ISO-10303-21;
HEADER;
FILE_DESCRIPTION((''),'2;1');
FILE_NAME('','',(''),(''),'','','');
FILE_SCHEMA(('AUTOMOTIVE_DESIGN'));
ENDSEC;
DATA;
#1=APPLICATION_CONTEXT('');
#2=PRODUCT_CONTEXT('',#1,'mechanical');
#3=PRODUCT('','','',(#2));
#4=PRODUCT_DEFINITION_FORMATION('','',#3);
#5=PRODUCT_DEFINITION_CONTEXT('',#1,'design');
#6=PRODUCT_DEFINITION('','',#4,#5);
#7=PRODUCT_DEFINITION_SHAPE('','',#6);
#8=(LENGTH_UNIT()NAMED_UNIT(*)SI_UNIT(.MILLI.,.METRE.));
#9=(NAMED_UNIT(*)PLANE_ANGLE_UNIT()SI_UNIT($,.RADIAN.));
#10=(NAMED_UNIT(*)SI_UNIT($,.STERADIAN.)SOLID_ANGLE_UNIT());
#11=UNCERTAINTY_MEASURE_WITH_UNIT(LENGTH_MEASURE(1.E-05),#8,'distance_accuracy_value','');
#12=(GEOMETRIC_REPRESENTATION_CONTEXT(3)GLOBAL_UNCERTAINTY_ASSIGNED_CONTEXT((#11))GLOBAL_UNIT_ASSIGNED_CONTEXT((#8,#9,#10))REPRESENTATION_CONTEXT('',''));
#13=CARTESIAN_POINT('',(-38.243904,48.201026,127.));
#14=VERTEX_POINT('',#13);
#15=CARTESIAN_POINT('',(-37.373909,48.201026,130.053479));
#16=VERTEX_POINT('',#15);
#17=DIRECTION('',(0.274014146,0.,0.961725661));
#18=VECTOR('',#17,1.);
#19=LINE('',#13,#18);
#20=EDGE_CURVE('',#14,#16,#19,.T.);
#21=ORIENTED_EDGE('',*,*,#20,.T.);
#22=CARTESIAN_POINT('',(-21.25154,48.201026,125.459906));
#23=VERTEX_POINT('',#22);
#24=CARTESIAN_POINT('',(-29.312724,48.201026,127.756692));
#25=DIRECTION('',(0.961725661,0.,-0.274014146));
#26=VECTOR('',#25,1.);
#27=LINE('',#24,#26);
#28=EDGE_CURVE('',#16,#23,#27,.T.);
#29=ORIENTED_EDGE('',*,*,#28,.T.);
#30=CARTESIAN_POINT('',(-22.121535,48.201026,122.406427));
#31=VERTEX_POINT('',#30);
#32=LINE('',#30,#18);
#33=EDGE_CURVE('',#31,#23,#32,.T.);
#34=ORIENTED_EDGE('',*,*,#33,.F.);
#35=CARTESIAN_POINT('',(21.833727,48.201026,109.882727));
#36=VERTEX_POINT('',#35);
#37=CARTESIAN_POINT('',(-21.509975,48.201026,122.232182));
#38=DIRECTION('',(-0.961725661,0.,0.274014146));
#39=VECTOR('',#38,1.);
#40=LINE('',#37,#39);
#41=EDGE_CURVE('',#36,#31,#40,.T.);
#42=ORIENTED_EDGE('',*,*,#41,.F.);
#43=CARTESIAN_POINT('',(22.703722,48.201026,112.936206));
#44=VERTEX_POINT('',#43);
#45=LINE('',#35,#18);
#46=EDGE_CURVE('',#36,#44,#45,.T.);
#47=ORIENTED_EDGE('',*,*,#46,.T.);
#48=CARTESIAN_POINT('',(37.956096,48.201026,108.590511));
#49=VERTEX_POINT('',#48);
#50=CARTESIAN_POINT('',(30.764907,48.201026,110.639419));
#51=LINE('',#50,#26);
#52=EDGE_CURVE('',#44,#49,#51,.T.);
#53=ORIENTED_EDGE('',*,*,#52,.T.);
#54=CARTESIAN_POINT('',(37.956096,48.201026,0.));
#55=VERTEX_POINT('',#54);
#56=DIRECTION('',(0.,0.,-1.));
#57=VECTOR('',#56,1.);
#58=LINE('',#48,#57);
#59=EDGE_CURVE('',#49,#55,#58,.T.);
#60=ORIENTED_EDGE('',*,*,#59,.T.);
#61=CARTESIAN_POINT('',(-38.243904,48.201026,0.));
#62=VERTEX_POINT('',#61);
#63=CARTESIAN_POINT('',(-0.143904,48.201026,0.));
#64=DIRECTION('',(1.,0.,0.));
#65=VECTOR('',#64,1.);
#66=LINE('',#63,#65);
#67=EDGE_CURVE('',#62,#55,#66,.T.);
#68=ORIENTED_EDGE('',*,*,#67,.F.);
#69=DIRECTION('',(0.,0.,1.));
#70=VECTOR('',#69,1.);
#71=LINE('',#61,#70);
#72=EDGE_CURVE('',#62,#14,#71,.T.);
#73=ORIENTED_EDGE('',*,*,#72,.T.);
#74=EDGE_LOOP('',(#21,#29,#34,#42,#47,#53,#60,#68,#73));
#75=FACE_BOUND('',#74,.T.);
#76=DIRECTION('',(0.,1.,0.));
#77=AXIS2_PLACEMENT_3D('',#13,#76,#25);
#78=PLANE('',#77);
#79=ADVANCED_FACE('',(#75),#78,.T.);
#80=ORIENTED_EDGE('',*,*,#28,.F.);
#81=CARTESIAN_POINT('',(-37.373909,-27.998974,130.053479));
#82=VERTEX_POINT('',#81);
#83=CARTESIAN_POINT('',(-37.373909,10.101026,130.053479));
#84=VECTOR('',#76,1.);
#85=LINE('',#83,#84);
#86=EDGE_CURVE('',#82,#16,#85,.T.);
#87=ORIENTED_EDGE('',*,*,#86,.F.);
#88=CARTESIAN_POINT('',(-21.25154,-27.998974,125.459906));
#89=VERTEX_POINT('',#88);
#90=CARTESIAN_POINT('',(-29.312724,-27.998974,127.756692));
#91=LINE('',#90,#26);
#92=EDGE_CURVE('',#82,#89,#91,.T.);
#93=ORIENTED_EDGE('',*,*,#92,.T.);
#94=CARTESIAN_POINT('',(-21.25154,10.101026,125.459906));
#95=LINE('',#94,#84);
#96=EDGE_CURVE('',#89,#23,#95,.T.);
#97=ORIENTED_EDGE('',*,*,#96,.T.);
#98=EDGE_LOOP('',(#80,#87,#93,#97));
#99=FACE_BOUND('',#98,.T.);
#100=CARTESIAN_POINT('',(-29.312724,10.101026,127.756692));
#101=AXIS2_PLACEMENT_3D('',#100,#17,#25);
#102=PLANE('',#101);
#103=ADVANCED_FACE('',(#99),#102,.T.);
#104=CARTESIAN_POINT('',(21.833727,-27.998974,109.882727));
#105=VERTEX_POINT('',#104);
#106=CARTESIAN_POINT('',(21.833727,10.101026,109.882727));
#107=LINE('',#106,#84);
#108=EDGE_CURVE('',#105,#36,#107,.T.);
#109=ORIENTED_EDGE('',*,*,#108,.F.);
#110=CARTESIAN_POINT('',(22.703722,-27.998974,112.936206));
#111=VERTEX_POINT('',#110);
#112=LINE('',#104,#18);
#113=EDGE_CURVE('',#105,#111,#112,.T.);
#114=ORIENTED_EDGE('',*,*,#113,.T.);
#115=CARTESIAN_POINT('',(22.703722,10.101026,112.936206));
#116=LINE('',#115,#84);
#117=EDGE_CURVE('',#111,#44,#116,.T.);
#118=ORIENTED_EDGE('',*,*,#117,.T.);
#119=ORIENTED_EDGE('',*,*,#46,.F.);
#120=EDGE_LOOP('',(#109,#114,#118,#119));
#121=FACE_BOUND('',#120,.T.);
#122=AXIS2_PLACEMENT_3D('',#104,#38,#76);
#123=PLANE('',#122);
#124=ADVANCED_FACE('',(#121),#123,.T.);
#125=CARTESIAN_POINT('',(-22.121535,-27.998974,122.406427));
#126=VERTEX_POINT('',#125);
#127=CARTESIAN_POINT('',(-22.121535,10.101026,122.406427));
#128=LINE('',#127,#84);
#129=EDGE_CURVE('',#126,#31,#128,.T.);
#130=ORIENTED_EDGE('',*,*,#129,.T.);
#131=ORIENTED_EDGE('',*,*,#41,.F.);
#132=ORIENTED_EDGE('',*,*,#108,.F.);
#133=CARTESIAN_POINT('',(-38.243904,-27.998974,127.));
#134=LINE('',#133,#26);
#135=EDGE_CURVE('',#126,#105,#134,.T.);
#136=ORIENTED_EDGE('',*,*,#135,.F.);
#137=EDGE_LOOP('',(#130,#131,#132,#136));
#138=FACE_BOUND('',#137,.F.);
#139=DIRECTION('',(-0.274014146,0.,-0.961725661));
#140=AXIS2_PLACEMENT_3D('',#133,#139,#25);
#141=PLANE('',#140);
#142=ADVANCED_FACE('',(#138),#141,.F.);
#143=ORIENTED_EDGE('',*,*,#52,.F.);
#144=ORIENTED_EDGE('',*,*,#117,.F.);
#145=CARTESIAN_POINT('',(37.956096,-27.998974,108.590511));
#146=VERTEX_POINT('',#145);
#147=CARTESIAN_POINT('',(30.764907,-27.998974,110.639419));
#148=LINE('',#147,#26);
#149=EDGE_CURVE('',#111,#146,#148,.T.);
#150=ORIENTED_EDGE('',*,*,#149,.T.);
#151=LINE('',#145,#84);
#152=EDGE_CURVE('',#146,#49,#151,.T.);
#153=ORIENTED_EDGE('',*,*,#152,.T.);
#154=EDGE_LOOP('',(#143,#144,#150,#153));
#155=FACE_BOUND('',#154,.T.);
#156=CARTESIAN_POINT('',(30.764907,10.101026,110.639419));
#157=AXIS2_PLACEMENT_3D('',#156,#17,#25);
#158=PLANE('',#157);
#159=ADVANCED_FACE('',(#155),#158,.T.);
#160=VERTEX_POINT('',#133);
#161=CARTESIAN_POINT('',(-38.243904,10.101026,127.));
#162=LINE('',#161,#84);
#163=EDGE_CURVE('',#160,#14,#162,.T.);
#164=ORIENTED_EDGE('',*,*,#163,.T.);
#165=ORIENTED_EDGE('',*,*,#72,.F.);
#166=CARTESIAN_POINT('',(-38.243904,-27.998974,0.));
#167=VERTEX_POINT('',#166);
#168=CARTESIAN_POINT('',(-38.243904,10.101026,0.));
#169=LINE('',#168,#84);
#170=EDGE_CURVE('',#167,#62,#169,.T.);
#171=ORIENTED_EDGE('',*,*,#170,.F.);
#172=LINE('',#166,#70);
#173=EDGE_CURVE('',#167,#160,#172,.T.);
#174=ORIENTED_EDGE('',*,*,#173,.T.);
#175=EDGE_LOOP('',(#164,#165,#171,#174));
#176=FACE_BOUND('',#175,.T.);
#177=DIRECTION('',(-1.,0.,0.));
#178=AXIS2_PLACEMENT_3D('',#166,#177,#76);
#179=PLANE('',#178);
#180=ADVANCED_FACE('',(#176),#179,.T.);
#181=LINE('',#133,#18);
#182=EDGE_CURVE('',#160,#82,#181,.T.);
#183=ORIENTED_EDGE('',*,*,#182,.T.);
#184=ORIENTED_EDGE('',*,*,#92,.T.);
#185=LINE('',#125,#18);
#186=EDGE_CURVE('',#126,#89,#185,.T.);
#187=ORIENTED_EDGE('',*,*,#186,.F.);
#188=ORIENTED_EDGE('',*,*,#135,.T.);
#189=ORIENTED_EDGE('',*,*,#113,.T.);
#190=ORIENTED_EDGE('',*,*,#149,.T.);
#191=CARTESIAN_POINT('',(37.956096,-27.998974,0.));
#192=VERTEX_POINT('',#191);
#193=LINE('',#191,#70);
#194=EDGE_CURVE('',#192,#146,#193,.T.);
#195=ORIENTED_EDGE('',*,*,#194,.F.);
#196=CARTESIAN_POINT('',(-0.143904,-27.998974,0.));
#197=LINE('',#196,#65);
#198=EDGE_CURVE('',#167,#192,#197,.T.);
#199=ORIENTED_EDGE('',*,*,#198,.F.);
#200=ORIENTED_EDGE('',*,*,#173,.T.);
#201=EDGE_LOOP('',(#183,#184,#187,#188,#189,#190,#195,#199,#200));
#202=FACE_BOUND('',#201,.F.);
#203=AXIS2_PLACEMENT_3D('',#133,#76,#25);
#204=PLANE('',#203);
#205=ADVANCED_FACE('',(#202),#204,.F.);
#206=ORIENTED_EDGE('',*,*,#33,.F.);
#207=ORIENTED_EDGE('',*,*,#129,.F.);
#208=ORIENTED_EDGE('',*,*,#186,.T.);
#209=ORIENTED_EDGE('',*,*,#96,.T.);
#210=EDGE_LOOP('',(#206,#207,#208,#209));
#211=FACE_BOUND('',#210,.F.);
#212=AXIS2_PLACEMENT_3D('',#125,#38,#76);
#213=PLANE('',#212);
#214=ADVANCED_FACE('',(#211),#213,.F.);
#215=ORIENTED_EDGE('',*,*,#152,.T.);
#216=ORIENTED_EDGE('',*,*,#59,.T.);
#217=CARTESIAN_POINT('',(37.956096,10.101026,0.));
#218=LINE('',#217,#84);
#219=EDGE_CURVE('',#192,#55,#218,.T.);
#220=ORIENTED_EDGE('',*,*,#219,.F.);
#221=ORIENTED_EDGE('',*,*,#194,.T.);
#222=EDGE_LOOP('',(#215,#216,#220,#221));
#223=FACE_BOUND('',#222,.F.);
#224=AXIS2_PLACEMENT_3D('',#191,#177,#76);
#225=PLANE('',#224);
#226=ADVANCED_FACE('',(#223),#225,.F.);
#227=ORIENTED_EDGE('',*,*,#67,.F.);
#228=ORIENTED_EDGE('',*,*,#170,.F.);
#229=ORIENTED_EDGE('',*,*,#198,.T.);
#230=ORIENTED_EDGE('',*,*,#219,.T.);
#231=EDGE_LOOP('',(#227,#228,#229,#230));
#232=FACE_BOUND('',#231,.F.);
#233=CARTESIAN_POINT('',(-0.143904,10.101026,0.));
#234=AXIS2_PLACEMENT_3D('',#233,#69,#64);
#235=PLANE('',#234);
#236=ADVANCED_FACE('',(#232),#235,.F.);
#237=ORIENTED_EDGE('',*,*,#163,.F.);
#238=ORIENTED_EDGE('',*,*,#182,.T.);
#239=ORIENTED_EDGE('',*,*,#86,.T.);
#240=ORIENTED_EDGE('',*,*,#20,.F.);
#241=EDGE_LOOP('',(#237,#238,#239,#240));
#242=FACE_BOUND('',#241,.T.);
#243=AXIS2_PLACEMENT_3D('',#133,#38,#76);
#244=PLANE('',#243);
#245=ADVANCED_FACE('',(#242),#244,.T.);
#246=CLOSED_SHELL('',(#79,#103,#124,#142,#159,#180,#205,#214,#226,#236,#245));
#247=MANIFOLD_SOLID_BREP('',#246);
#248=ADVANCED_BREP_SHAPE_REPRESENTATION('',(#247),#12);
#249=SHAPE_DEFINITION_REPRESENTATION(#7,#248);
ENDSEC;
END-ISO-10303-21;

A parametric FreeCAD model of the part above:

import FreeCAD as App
import Part
import Sketcher

V = App.Vector
Q = App.Units.Quantity


def add_polygon(sketch, points):
    """Adds a closed chain of lines whose ends are joined by coincident constraints."""
    first, n = sketch.GeometryCount, len(points)
    for a, b in zip(points, points[1:] + points[:1]):
        sketch.addGeometry(Part.LineSegment(App.Vector(*a, 0), App.Vector(*b, 0)), False)
    for i in range(n):
        sketch.addConstraint(Sketcher.Constraint("Coincident", first + i, 2, first + (i + 1) % n, 1))

doc = App.newDocument("Part")
params = doc.addObject("Spreadsheet::Sheet", "Params")
for row, (alias, value) in enumerate([
    ("sketch1_width", "3 in"),
    ("pad1_length", "5 in"),
    ("sketch2_width", "3 in"),
    ("sketch3_height", "3 in"),
    ("sketch3_width", "0.66 in"),
    ("pad2_length", "0.125 in"),
    ("sketch4_length", "0.125 in"),
], start=1):
    params.set(f"A{row}", alias)
    params.set(f"B{row}", "=" + value)
    params.setAlias(f"B{row}", alias)

body = doc.addObject("PartDesign::Body", "Body")

sketch1 = body.newObject("Sketcher::SketchObject", "Sketch")
sketch1.AttachmentSupport = (doc.getObject("XY_Plane"), [""])
sketch1.MapMode = "FlatFace"
add_polygon(sketch1, [(-38, 48), (-38, -28), (38, -28), (38, 48)])
sketch1.addConstraint(Sketcher.Constraint("Vertical", 0))
sketch1.addConstraint(Sketcher.Constraint("Horizontal", 1))
sketch1.addConstraint(Sketcher.Constraint("Vertical", 2))
sketch1.addConstraint(Sketcher.Constraint("Horizontal", 3))
sketch1.addConstraint(Sketcher.Constraint("Equal", 3, 0))
sketch1.addConstraint(Sketcher.Constraint("DistanceX", 1, 1, 1, 2, Q("3 in")))
sketch1.addConstraint(Sketcher.Constraint("DistanceX", 0, 2, -1, 1, Q("38.243904 mm")))
sketch1.addConstraint(Sketcher.Constraint("DistanceY", 0, 2, -1, 1, Q("27.998974 mm")))
sketch1.setExpression("Constraints[9]", "Params.sketch1_width")
pad1 = body.newObject("PartDesign::Pad", "Pad")
pad1.Profile = sketch1
pad1.setExpression("Length", "Params.pad1_length")

sketch2 = body.newObject("Sketcher::SketchObject", "Sketch001")
sketch2.AttachmentSupport = (doc.getObject("XZ_Plane"), [""])
sketch2.MapMode = "FlatFace"
sketch2.AttachmentOffset = App.Placement(V(0, 0, 27.998974), App.Rotation())
add_polygon(sketch2, [(38, 127), (-38, 127), (38, 105)])
sketch2.addConstraint(Sketcher.Constraint("Horizontal", 0))
sketch2.addConstraint(Sketcher.Constraint("Vertical", 2))
sketch2.addConstraint(Sketcher.Constraint("DistanceX", 0, 2, 0, 1, Q("3 in")))
sketch2.addConstraint(Sketcher.Constraint("DistanceY", -1, 1, 0, 2, Q("5 in")))
sketch2.addConstraint(Sketcher.Constraint("DistanceY", 2, 1, 2, 2, Q("21.710846 mm")))
sketch2.addConstraint(Sketcher.Constraint("DistanceX", 0, 2, -1, 1, Q("38.243904 mm")))
sketch2.setExpression("Constraints[5]", "Params.sketch2_width")
pocket1 = body.newObject("PartDesign::Pocket", "Pocket")
pocket1.Profile = sketch2
pocket1.Type = "ThroughAll"

sketch3 = body.newObject("Sketcher::SketchObject", "Sketch002")
sketch3.Placement = App.Placement(V(30.596362, 0, 107.386084), App.Rotation(V(0.961725661, 0, -0.274014146), V(0, 0.999999999, 0), V(0.274014146, 0, 0.961725661), "ZXY"))
add_polygon(sketch3, [(-72, 48), (-72, -28), (-55, -28), (-55, 48)])
add_polygon(sketch3, [(-9, 48), (-9, -28), (8, -28), (8, 48)])
sketch3.addConstraint(Sketcher.Constraint("Vertical", 0))
sketch3.addConstraint(Sketcher.Constraint("Horizontal", 1))
sketch3.addConstraint(Sketcher.Constraint("Vertical", 2))
sketch3.addConstraint(Sketcher.Constraint("Horizontal", 3))
sketch3.addConstraint(Sketcher.Constraint("Vertical", 4))
sketch3.addConstraint(Sketcher.Constraint("Horizontal", 5))
sketch3.addConstraint(Sketcher.Constraint("Vertical", 6))
sketch3.addConstraint(Sketcher.Constraint("Horizontal", 7))
sketch3.addConstraint(Sketcher.Constraint("Horizontal", 1, 2, 4, 2))
sketch3.addConstraint(Sketcher.Constraint("Horizontal", 3, 2, 6, 2))
sketch3.addConstraint(Sketcher.Constraint("Equal", 3, 5))
sketch3.addConstraint(Sketcher.Constraint("DistanceY", 0, 2, 0, 1, Q("3 in")))
sketch3.addConstraint(Sketcher.Constraint("DistanceX", 1, 1, 1, 2, Q("0.66 in")))
sketch3.addConstraint(Sketcher.Constraint("DistanceX", 0, 2, -1, 1, Q("71.57994 mm")))
sketch3.addConstraint(Sketcher.Constraint("DistanceY", 0, 2, -1, 1, Q("27.998973 mm")))
sketch3.addConstraint(Sketcher.Constraint("DistanceX", 4, 2, -1, 1, Q("9.111366 mm")))
sketch3.setExpression("Constraints[19]", "Params.sketch3_height")
sketch3.setExpression("Constraints[20]", "Params.sketch3_width")
pad2 = body.newObject("PartDesign::Pad", "Pad001")
pad2.Profile = sketch3
pad2.setExpression("Length", "Params.pad2_length")

sketch4 = body.newObject("Sketcher::SketchObject", "Sketch003")
sketch4.AttachmentSupport = (doc.getObject("XZ_Plane"), [""])
sketch4.MapMode = "FlatFace"
sketch4.AttachmentOffset = App.Placement(V(0, 0, 27.998974), App.Rotation())
add_polygon(sketch4, [(38, 108.6), (38, 105.3), (38.8, 108.3)])
sketch4.addConstraint(Sketcher.Constraint("Vertical", 0))
sketch4.addConstraint(Sketcher.Constraint("Perpendicular", 1, 2))
sketch4.addConstraint(Sketcher.Constraint("Distance", 1, Q("0.125 in")))
sketch4.addConstraint(Sketcher.Constraint("Distance", 2, Q("0.904619 mm")))
sketch4.addConstraint(Sketcher.Constraint("DistanceX", -1, 1, 1, 2, Q("38.826091 mm")))
sketch4.addConstraint(Sketcher.Constraint("DistanceY", -1, 1, 2, 2, Q("108.590511 mm")))
sketch4.setExpression("Constraints[5]", "Params.sketch4_length")
pocket2 = body.newObject("PartDesign::Pocket", "Pocket001")
pocket2.Profile = sketch4
pocket2.Type = "ThroughAll"

doc.recompute()
